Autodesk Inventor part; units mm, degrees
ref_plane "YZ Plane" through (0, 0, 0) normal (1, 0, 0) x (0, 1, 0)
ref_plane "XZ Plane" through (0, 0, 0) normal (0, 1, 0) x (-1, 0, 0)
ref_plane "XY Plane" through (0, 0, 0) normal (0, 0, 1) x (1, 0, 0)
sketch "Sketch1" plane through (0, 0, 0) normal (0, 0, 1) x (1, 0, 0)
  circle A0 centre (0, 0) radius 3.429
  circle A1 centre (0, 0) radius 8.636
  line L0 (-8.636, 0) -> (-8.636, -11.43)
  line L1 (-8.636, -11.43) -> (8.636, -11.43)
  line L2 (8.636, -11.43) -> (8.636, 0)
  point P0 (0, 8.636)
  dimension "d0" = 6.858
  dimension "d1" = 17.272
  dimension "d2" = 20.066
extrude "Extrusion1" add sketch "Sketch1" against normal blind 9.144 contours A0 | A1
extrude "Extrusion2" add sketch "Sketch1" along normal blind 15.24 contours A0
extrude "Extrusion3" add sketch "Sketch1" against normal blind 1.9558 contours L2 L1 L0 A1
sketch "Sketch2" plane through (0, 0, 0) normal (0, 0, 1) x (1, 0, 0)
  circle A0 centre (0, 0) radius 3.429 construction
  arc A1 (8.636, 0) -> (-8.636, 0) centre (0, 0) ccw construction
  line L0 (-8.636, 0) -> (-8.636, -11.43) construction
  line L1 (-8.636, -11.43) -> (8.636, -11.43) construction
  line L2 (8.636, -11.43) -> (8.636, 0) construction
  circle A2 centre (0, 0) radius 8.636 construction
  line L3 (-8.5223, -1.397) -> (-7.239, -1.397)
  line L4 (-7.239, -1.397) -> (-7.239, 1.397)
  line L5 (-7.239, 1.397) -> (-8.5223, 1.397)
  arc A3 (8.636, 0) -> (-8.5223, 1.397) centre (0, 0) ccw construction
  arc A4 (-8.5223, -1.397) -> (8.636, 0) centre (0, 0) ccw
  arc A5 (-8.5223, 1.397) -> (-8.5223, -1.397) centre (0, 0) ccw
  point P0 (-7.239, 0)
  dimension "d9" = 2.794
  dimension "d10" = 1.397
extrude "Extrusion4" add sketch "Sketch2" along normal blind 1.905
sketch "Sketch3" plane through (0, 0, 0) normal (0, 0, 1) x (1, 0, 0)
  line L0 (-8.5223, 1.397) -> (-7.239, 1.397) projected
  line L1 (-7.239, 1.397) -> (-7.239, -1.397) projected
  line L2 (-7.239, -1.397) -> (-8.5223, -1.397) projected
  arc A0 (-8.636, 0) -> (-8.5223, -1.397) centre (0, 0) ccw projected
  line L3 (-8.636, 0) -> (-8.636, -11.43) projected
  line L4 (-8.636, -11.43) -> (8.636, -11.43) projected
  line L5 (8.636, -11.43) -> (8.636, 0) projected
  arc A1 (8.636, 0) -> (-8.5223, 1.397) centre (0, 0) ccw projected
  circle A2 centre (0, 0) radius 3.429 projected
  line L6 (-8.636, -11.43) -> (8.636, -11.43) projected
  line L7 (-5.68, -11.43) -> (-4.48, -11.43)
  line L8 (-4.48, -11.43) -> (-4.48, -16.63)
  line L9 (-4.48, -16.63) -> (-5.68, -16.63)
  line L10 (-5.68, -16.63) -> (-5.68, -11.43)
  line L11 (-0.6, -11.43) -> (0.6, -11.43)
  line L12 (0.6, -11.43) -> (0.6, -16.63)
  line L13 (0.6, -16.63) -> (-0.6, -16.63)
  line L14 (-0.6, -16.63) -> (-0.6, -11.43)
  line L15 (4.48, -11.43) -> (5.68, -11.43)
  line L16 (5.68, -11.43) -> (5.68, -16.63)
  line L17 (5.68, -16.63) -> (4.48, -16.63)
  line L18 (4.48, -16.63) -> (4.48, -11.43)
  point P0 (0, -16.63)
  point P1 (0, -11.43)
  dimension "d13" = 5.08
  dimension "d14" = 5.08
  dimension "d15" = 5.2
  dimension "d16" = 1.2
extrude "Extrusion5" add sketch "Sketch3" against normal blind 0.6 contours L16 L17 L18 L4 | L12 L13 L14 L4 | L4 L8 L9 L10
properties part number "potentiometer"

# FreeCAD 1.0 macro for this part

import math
import FreeCAD as App
import Part
import Sketcher

V = App.Vector
Q = App.Units.Quantity

doc = App.newDocument("Part")
body = doc.addObject("PartDesign::Body", "Body")

# Sketch on XY plane
sketch1 = doc.addObject("Sketcher::SketchObject", "Sketch")
body.addObject(sketch1)
sketch1.AttachmentSupport = (doc.XY_Plane, [""])
sketch1.MapMode = "FlatFace"
sketch1.addGeometry(Part.Circle(V(0, 0, 0), V(0, 0, 1), 9), False)
sketch1.addConstraint([
    Sketcher.Constraint("Coincident", 0, 3, -1, 1),
    Sketcher.Constraint("Diameter", 0, Q("0.68 in")),
])
pad1 = doc.addObject("PartDesign::Pad", "Pad")
body.addObject(pad1)
pad1.Profile = sketch1
pad1.Length = Q("0.36 in")
pad1.Reversed = True

# Sketch on XY plane
sketch2 = doc.addObject("Sketcher::SketchObject", "Sketch001")
body.addObject(sketch2)
sketch2.AttachmentSupport = (doc.XY_Plane, [""])
sketch2.MapMode = "FlatFace"
sketch2.addGeometry(Part.Circle(V(0, 0, 0), V(0, 0, 1), 3.4), False)
sketch2.addConstraint([
    Sketcher.Constraint("Coincident", 0, 3, -1, 1),
    Sketcher.Constraint("Diameter", 0, Q("0.27 in")),
])
pad2 = doc.addObject("PartDesign::Pad", "Pad001")
body.addObject(pad2)
pad2.Profile = sketch2
pad2.Length = Q("0.6 in")

# Sketch on XY plane
sketch3 = doc.addObject("Sketcher::SketchObject", "Sketch002")
body.addObject(sketch3)
sketch3.AttachmentSupport = (doc.XY_Plane, [""])
sketch3.MapMode = "FlatFace"
sketch3.addGeometry([
    Part.LineSegment(V(9, -11, 0), V(9, 0, 0)),
    Part.ArcOfCircle(Part.Circle(V(0, 0, 0), V(0, 0, 1), 9), math.radians(180), math.radians(360)),
    Part.LineSegment(V(-9, 0, 0), V(-9, -11, 0)),
    Part.LineSegment(V(-9, -11, 0), V(9, -11, 0)),
], False)
sketch3.addConstraint([
    Sketcher.Constraint("Tangent", 0, 2, 1, 2),
    Sketcher.Constraint("Tangent", 1, 1, 2, 1),
    Sketcher.Constraint("Coincident", 2, 2, 3, 1),
    Sketcher.Constraint("Coincident", 3, 2, 0, 1),
    Sketcher.Constraint("Vertical", 0),
    Sketcher.Constraint("Vertical", 2),
    Sketcher.Constraint("Horizontal", 3),
    Sketcher.Constraint("Coincident", 1, 3, -1, 1),
    Sketcher.Constraint("Radius", 1, Q("0.34 in")),
    Sketcher.Constraint("DistanceY", 0, 1, 0, 2, Q("0.45 in")),
])
pad3 = doc.addObject("PartDesign::Pad", "Pad002")
body.addObject(pad3)
pad3.Profile = sketch3
pad3.Length = Q("0.077 in")
pad3.Reversed = True

# Sketch on XY plane
sketch4 = doc.addObject("Sketcher::SketchObject", "Sketch003")
body.addObject(sketch4)
sketch4.AttachmentSupport = (doc.XY_Plane, [""])
sketch4.MapMode = "FlatFace"
sketch4.addGeometry([
    Part.ArcOfCircle(Part.Circle(V(0, 0, 0), V(0, 0, 1), 8.6), math.radians(170.69), math.radians(189.31)),
    Part.LineSegment(V(-8.5, -1.4, 0), V(-7.2, -1.4, 0)),
    Part.LineSegment(V(-7.2, -1.4, 0), V(-7.2, 1.4, 0)),
    Part.LineSegment(V(-7.2, 1.4, 0), V(-8.5, 1.4, 0)),
], False)
sketch4.addConstraint([
    Sketcher.Constraint("Coincident", 0, 2, 1, 1),
    Sketcher.Constraint("Coincident", 1, 2, 2, 1),
    Sketcher.Constraint("Coincident", 2, 2, 3, 1),
    Sketcher.Constraint("Coincident", 3, 2, 0, 1),
    Sketcher.Constraint("Horizontal", 1),
    Sketcher.Constraint("Vertical", 2),
    Sketcher.Constraint("Horizontal", 3),
    Sketcher.Constraint("Coincident", 0, 3, -1, 1),
    Sketcher.Constraint("Vertical", 0, 2, 3, 2),
    Sketcher.Constraint("DistanceY", 2, 1, 2, 2, Q("0.11 in")),
    Sketcher.Constraint("Radius", 0, Q("0.34 in")),
    Sketcher.Constraint("DistanceX", 1, 2, -1, 1, Q("0.285 in")),
])
pad4 = doc.addObject("PartDesign::Pad", "Pad003")
body.addObject(pad4)
pad4.Profile = sketch4
pad4.Length = Q("0.075 in")

# Sketch on XY plane
sketch5 = doc.addObject("Sketcher::SketchObject", "Sketch004")
body.addObject(sketch5)
sketch5.AttachmentSupport = (doc.XY_Plane, [""])
sketch5.MapMode = "FlatFace"
sketch5.addGeometry([
    Part.LineSegment(V(5.7, -16.6, 0), V(5.7, -11.4, 0)),  # 0
    Part.LineSegment(V(5.7, -11.4, 0), V(4.5, -11.4, 0)),  # 1
    Part.LineSegment(V(4.5, -11.4, 0), V(4.5, -16.6, 0)),  # 2
    Part.LineSegment(V(4.5, -16.6, 0), V(5.7, -16.6, 0)),  # 3
    Part.LineSegment(V(0.6, -16.6, 0), V(0.6, -11.4, 0)),  # 4
    Part.LineSegment(V(0.6, -11.4, 0), V(-0.6, -11.4, 0)),  # 5
    Part.LineSegment(V(-0.6, -11.4, 0), V(-0.6, -16.6, 0)),  # 6
    Part.LineSegment(V(-0.6, -16.6, 0), V(0.6, -16.6, 0)),  # 7
    Part.LineSegment(V(-4.5, -11.4, 0), V(-5.7, -11.4, 0)),  # 8
    Part.LineSegment(V(-5.7, -11.4, 0), V(-5.7, -16.6, 0)),  # 9
    Part.LineSegment(V(-5.7, -16.6, 0), V(-4.5, -16.6, 0)),  # 10
    Part.LineSegment(V(-4.5, -16.6, 0), V(-4.5, -11.4, 0)),  # 11
], False)
sketch5.addConstraint([
    Sketcher.Constraint("Coincident", 0, 2, 1, 1),
    Sketcher.Constraint("Coincident", 1, 2, 2, 1),
    Sketcher.Constraint("Coincident", 2, 2, 3, 1),
    Sketcher.Constraint("Coincident", 3, 2, 0, 1),
    Sketcher.Constraint("Coincident", 4, 2, 5, 1),
    Sketcher.Constraint("Coincident", 5, 2, 6, 1),
    Sketcher.Constraint("Coincident", 6, 2, 7, 1),
    Sketcher.Constraint("Coincident", 7, 2, 4, 1),
    Sketcher.Constraint("Coincident", 8, 2, 9, 1),
    Sketcher.Constraint("Coincident", 9, 2, 10, 1),
    Sketcher.Constraint("Coincident", 10, 2, 11, 1),
    Sketcher.Constraint("Coincident", 11, 2, 8, 1),
    Sketcher.Constraint("Vertical", 0),
    Sketcher.Constraint("Horizontal", 1),
    Sketcher.Constraint("Vertical", 2),
    Sketcher.Constraint("Horizontal", 3),
    Sketcher.Constraint("Vertical", 4),
    Sketcher.Constraint("Horizontal", 5),
    Sketcher.Constraint("Vertical", 6),
    Sketcher.Constraint("Horizontal", 7),
    Sketcher.Constraint("Horizontal", 8),
    Sketcher.Constraint("Vertical", 9),
    Sketcher.Constraint("Horizontal", 10),
    Sketcher.Constraint("Vertical", 11),
    Sketcher.Constraint("Symmetric", 0, 2, 8, 2, -2),
    Sketcher.Constraint("Symmetric", 2, 2, 10, 2, -2),
    Sketcher.Constraint("Horizontal", 1, 2, 4, 2),
    Sketcher.Constraint("Horizontal", 3, 2, 6, 2),
    Sketcher.Constraint("Equal", 3, 5),
    Sketcher.Constraint("DistanceX", 4, 2, 0, 2, Q("0.2 in")),
    Sketcher.Constraint("DistanceX", 8, 2, 5, 2, Q("0.2 in")),
    Sketcher.Constraint("DistanceX", 1, 2, 1, 1, 1.2),
    Sketcher.Constraint("DistanceY", 0, 1, 0, 2, 5.2),
    Sketcher.Constraint("DistanceY", 0, 2, -1, 1, Q("0.45 in")),
])
pad5 = doc.addObject("PartDesign::Pad", "Pad004")
body.addObject(pad5)
pad5.Profile = sketch5
pad5.Length = 0.6
pad5.Reversed = True

doc.recompute()
